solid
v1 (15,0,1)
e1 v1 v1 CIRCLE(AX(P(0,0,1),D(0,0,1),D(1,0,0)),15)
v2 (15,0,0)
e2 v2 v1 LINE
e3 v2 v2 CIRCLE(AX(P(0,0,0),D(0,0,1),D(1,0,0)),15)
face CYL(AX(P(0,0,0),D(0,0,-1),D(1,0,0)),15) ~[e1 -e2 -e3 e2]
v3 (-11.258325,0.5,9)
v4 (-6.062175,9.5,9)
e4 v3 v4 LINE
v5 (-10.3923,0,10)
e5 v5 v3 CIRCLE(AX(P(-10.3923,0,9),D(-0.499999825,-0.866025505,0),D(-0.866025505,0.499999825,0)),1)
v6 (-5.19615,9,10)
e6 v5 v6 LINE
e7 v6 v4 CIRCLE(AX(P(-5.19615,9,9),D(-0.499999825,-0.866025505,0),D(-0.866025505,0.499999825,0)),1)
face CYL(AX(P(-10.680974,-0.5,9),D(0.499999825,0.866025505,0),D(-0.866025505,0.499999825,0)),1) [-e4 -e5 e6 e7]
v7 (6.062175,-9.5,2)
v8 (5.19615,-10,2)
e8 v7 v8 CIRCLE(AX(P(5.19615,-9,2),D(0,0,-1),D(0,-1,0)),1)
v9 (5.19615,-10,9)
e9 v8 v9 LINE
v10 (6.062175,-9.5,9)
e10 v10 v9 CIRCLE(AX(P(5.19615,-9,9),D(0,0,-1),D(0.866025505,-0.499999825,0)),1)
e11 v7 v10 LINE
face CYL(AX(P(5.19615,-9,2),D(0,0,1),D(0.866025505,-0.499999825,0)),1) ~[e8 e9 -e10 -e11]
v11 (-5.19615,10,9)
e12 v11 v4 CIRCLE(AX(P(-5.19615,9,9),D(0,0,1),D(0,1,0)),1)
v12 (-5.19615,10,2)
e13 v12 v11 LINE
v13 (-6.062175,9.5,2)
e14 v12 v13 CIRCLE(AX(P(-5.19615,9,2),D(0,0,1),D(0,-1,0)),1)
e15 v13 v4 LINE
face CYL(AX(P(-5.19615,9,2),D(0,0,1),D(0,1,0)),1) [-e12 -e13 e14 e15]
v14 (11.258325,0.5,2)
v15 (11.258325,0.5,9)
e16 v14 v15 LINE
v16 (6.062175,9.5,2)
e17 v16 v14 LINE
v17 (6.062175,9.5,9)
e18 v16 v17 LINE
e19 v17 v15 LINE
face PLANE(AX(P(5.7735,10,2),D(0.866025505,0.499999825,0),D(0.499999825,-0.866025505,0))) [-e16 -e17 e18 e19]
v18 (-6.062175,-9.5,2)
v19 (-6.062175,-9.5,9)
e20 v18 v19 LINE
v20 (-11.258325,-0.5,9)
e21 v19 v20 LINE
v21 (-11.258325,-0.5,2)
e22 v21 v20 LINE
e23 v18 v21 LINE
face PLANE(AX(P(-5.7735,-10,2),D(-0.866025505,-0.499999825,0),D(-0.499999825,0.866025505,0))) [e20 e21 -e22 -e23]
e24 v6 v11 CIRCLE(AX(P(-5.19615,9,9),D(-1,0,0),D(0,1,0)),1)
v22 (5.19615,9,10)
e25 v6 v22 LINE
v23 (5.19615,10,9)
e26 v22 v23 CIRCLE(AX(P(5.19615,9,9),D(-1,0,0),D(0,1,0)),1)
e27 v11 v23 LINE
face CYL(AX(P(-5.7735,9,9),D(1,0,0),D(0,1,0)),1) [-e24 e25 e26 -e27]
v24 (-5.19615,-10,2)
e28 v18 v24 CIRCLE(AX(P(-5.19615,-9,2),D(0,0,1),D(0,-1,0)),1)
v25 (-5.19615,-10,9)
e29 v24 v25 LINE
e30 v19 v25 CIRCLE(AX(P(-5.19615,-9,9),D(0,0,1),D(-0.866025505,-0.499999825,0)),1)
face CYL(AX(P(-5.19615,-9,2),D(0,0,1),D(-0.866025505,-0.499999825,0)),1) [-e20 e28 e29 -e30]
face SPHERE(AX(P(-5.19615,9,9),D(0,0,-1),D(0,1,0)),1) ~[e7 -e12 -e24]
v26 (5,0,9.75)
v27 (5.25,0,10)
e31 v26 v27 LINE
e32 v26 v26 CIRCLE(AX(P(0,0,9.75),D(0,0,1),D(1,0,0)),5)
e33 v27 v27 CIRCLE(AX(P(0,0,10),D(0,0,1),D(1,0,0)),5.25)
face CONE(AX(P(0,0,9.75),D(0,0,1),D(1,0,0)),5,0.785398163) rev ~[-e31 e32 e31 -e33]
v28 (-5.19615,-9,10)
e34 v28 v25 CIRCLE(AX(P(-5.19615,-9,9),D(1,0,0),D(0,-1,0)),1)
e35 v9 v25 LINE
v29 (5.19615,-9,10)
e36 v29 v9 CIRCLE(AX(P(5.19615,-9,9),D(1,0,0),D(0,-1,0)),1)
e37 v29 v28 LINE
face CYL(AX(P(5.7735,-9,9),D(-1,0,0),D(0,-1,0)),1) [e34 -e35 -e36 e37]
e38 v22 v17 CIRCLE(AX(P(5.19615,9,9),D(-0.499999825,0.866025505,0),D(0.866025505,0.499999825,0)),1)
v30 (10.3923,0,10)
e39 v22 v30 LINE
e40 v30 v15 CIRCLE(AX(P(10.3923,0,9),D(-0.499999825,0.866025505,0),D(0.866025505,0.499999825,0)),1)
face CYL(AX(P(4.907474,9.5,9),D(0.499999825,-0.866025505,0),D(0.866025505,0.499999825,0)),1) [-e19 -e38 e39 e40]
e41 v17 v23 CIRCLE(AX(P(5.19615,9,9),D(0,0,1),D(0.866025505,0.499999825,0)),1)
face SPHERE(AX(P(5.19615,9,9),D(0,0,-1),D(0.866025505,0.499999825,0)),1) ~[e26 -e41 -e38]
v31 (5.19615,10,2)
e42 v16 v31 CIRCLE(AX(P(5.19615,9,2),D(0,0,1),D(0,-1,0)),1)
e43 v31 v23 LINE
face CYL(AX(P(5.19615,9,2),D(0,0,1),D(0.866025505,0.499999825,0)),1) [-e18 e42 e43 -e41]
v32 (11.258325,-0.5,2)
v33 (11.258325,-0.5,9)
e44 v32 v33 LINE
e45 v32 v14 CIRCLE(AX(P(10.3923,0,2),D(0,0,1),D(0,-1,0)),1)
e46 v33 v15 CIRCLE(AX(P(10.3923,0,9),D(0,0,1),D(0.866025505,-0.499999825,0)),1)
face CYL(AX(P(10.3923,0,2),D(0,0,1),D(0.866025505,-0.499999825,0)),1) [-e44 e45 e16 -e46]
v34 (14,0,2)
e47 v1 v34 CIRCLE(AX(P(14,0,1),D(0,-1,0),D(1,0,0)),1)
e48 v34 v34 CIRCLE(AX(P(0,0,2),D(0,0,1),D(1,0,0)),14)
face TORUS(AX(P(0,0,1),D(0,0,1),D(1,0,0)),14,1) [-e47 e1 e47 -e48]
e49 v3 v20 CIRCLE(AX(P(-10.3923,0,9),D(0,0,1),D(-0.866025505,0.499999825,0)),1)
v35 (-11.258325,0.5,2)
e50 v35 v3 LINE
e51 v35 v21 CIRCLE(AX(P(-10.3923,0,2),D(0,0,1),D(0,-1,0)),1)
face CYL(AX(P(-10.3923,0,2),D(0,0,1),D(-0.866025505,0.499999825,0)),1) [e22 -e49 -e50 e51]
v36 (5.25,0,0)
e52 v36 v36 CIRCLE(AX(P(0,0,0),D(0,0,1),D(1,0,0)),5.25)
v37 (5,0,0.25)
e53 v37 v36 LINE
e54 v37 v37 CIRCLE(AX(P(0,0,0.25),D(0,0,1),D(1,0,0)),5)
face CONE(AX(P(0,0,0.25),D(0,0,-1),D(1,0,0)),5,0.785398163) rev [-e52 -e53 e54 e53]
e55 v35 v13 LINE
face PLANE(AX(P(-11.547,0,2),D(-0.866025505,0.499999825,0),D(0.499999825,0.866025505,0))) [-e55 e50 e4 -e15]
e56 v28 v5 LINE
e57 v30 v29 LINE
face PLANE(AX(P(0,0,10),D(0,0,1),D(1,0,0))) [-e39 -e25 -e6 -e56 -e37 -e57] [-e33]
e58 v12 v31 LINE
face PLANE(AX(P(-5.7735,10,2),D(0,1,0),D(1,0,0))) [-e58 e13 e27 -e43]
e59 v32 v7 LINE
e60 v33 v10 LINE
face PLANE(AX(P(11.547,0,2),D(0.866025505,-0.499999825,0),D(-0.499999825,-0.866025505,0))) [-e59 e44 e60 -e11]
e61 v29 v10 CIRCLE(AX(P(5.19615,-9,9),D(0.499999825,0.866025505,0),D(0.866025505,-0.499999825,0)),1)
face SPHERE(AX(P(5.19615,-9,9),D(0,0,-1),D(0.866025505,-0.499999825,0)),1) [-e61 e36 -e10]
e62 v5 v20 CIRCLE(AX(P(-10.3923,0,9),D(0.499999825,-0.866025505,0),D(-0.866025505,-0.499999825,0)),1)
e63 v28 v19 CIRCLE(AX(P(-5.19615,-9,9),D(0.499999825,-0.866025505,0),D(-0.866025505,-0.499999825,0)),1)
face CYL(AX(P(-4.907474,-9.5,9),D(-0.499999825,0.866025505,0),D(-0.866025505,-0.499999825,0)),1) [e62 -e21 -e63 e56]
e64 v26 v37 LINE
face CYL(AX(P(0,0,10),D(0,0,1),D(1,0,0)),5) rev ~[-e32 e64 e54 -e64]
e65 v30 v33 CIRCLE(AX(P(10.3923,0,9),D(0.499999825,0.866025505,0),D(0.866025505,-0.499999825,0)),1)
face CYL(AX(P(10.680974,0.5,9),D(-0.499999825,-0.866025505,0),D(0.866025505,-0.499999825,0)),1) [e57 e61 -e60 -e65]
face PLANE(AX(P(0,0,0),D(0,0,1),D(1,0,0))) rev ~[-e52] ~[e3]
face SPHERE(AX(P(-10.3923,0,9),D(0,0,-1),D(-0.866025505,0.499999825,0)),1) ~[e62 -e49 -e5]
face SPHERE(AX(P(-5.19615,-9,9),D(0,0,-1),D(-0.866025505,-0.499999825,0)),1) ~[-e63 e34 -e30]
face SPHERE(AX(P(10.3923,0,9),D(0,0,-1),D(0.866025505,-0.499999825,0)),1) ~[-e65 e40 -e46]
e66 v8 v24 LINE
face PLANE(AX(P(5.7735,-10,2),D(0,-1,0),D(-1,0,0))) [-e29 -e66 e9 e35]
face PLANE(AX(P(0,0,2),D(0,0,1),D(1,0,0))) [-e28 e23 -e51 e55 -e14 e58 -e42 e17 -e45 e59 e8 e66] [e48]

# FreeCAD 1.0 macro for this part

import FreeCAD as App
import Part
import Sketcher

V = App.Vector
Q = App.Units.Quantity


def edges_at(feature, points):
    """Names of the edges that pass closest to the given points."""
    edges = feature.Shape.Edges
    near = lambda p: min(range(len(edges)), key=lambda i: edges[i].distToShape(Part.Vertex(*p))[0])
    return sorted({f"Edge{near(p) + 1}" for p in points})


def add_polygon(sketch, points):
    """Adds a closed chain of lines whose ends are joined by coincident constraints."""
    first, n = sketch.GeometryCount, len(points)
    for a, b in zip(points, points[1:] + points[:1]):
        sketch.addGeometry(Part.LineSegment(App.Vector(*a, 0), App.Vector(*b, 0)), False)
    for i in range(n):
        sketch.addConstraint(Sketcher.Constraint("Coincident", first + i, 2, first + (i + 1) % n, 1))

doc = App.newDocument("Part")
body = doc.addObject("PartDesign::Body", "Body")

# Sketch on XY plane
sketch1 = body.newObject("Sketcher::SketchObject", "Sketch")
sketch1.AttachmentSupport = (doc.getObject("XY_Plane"), [""])
sketch1.MapMode = "FlatFace"
sketch1.addGeometry(Part.Circle(V(0, 0, 0), V(0, 0, 1), 15), False)
sketch1.addConstraint(Sketcher.Constraint("Coincident", 0, 3, -1, 1))
sketch1.addConstraint(Sketcher.Constraint("Diameter", 0, 30.0))
pad1 = body.newObject("PartDesign::Pad", "Pad")
pad1.Profile = sketch1
pad1.Length = 2

# Sketch on XY plane
sketch2 = body.newObject("Sketcher::SketchObject", "Sketch001")
sketch2.AttachmentSupport = (doc.getObject("XY_Plane"), [""])
sketch2.MapMode = "FlatFace"
sketch2.AttachmentOffset = App.Placement(V(0, 0, 2), App.Rotation())
add_polygon(sketch2, [(-6, -10), (6, -10), (12, 0), (6, 10), (-6, 10), (-12, 0)])  # lines 0-5
sketch2.addConstraint(Sketcher.Constraint("Horizontal", 0))
sketch2.addConstraint(Sketcher.Constraint("Horizontal", 3))
sketch2.addConstraint(Sketcher.Constraint("Symmetric", 0, 2, 3, 2, -1, 1))
sketch2.addConstraint(Sketcher.Constraint("Symmetric", 1, 2, 4, 2, -1, 1))
sketch2.addConstraint(Sketcher.Constraint("PointOnObject", 1, 2, -1))
sketch2.addConstraint(Sketcher.Constraint("Parallel", 2, 5))
sketch2.addConstraint(Sketcher.Constraint("Vertical", 0, 2, 2, 2))
sketch2.addConstraint(Sketcher.Constraint("DistanceY", 0, 2, 2, 2, 20.0))
sketch2.addConstraint(Sketcher.Constraint("Angle", 1, Q("60 deg")))
sketch2.addConstraint(Sketcher.Constraint("DistanceX", 0, 1, 0, 2, 11.547))
pad2 = body.newObject("PartDesign::Pad", "Pad001")
pad2.Profile = sketch2
pad2.Length = 8

# Sketch on XY plane
sketch3 = body.newObject("Sketcher::SketchObject", "Sketch002")
sketch3.AttachmentSupport = (doc.getObject("XY_Plane"), [""])
sketch3.MapMode = "FlatFace"
sketch3.AttachmentOffset = App.Placement(V(0, 0, 10), App.Rotation())
sketch3.addGeometry(Part.Circle(V(0, 0, 0), V(0, 0, 1), 5), False)
sketch3.addConstraint(Sketcher.Constraint("Coincident", 0, 3, -1, 1))
sketch3.addConstraint(Sketcher.Constraint("Diameter", 0, 10.0))
pocket1 = body.newObject("PartDesign::Pocket", "Pocket")
pocket1.Profile = sketch3
pocket1.Type = "ThroughAll"
doc.recompute()

fillet = body.newObject("PartDesign::Fillet", "Fillet")
fillet.Base = (pocket1, edges_at(pocket1, [
    (-15, 0, 2),
    (-5.774, 10, 6),
    (-11.547, 0, 6),
    (-5.774, -10, 6),
    (11.547, 0, 6),
    (5.774, 10, 6),
    (5.774, -10, 6),
    (8.66, -5, 10),
    (8.66, 5, 10),
    (0, 10, 10),
    (-8.66, 5, 10),
    (-8.66, -5, 10),
    (0, -10, 10),
]))
fillet.Radius = 1
doc.recompute()

chamfer = body.newObject("PartDesign::Chamfer", "Chamfer")
chamfer.Base = (fillet, edges_at(fillet, [(-5, 0, 10)]))
chamfer.Size = 0.25
doc.recompute()

chamfer2 = body.newObject("PartDesign::Chamfer", "Chamfer001")
chamfer2.Base = (chamfer, edges_at(chamfer, [(-5, 0, 0)]))
chamfer2.Size = 0.25

doc.recompute()
